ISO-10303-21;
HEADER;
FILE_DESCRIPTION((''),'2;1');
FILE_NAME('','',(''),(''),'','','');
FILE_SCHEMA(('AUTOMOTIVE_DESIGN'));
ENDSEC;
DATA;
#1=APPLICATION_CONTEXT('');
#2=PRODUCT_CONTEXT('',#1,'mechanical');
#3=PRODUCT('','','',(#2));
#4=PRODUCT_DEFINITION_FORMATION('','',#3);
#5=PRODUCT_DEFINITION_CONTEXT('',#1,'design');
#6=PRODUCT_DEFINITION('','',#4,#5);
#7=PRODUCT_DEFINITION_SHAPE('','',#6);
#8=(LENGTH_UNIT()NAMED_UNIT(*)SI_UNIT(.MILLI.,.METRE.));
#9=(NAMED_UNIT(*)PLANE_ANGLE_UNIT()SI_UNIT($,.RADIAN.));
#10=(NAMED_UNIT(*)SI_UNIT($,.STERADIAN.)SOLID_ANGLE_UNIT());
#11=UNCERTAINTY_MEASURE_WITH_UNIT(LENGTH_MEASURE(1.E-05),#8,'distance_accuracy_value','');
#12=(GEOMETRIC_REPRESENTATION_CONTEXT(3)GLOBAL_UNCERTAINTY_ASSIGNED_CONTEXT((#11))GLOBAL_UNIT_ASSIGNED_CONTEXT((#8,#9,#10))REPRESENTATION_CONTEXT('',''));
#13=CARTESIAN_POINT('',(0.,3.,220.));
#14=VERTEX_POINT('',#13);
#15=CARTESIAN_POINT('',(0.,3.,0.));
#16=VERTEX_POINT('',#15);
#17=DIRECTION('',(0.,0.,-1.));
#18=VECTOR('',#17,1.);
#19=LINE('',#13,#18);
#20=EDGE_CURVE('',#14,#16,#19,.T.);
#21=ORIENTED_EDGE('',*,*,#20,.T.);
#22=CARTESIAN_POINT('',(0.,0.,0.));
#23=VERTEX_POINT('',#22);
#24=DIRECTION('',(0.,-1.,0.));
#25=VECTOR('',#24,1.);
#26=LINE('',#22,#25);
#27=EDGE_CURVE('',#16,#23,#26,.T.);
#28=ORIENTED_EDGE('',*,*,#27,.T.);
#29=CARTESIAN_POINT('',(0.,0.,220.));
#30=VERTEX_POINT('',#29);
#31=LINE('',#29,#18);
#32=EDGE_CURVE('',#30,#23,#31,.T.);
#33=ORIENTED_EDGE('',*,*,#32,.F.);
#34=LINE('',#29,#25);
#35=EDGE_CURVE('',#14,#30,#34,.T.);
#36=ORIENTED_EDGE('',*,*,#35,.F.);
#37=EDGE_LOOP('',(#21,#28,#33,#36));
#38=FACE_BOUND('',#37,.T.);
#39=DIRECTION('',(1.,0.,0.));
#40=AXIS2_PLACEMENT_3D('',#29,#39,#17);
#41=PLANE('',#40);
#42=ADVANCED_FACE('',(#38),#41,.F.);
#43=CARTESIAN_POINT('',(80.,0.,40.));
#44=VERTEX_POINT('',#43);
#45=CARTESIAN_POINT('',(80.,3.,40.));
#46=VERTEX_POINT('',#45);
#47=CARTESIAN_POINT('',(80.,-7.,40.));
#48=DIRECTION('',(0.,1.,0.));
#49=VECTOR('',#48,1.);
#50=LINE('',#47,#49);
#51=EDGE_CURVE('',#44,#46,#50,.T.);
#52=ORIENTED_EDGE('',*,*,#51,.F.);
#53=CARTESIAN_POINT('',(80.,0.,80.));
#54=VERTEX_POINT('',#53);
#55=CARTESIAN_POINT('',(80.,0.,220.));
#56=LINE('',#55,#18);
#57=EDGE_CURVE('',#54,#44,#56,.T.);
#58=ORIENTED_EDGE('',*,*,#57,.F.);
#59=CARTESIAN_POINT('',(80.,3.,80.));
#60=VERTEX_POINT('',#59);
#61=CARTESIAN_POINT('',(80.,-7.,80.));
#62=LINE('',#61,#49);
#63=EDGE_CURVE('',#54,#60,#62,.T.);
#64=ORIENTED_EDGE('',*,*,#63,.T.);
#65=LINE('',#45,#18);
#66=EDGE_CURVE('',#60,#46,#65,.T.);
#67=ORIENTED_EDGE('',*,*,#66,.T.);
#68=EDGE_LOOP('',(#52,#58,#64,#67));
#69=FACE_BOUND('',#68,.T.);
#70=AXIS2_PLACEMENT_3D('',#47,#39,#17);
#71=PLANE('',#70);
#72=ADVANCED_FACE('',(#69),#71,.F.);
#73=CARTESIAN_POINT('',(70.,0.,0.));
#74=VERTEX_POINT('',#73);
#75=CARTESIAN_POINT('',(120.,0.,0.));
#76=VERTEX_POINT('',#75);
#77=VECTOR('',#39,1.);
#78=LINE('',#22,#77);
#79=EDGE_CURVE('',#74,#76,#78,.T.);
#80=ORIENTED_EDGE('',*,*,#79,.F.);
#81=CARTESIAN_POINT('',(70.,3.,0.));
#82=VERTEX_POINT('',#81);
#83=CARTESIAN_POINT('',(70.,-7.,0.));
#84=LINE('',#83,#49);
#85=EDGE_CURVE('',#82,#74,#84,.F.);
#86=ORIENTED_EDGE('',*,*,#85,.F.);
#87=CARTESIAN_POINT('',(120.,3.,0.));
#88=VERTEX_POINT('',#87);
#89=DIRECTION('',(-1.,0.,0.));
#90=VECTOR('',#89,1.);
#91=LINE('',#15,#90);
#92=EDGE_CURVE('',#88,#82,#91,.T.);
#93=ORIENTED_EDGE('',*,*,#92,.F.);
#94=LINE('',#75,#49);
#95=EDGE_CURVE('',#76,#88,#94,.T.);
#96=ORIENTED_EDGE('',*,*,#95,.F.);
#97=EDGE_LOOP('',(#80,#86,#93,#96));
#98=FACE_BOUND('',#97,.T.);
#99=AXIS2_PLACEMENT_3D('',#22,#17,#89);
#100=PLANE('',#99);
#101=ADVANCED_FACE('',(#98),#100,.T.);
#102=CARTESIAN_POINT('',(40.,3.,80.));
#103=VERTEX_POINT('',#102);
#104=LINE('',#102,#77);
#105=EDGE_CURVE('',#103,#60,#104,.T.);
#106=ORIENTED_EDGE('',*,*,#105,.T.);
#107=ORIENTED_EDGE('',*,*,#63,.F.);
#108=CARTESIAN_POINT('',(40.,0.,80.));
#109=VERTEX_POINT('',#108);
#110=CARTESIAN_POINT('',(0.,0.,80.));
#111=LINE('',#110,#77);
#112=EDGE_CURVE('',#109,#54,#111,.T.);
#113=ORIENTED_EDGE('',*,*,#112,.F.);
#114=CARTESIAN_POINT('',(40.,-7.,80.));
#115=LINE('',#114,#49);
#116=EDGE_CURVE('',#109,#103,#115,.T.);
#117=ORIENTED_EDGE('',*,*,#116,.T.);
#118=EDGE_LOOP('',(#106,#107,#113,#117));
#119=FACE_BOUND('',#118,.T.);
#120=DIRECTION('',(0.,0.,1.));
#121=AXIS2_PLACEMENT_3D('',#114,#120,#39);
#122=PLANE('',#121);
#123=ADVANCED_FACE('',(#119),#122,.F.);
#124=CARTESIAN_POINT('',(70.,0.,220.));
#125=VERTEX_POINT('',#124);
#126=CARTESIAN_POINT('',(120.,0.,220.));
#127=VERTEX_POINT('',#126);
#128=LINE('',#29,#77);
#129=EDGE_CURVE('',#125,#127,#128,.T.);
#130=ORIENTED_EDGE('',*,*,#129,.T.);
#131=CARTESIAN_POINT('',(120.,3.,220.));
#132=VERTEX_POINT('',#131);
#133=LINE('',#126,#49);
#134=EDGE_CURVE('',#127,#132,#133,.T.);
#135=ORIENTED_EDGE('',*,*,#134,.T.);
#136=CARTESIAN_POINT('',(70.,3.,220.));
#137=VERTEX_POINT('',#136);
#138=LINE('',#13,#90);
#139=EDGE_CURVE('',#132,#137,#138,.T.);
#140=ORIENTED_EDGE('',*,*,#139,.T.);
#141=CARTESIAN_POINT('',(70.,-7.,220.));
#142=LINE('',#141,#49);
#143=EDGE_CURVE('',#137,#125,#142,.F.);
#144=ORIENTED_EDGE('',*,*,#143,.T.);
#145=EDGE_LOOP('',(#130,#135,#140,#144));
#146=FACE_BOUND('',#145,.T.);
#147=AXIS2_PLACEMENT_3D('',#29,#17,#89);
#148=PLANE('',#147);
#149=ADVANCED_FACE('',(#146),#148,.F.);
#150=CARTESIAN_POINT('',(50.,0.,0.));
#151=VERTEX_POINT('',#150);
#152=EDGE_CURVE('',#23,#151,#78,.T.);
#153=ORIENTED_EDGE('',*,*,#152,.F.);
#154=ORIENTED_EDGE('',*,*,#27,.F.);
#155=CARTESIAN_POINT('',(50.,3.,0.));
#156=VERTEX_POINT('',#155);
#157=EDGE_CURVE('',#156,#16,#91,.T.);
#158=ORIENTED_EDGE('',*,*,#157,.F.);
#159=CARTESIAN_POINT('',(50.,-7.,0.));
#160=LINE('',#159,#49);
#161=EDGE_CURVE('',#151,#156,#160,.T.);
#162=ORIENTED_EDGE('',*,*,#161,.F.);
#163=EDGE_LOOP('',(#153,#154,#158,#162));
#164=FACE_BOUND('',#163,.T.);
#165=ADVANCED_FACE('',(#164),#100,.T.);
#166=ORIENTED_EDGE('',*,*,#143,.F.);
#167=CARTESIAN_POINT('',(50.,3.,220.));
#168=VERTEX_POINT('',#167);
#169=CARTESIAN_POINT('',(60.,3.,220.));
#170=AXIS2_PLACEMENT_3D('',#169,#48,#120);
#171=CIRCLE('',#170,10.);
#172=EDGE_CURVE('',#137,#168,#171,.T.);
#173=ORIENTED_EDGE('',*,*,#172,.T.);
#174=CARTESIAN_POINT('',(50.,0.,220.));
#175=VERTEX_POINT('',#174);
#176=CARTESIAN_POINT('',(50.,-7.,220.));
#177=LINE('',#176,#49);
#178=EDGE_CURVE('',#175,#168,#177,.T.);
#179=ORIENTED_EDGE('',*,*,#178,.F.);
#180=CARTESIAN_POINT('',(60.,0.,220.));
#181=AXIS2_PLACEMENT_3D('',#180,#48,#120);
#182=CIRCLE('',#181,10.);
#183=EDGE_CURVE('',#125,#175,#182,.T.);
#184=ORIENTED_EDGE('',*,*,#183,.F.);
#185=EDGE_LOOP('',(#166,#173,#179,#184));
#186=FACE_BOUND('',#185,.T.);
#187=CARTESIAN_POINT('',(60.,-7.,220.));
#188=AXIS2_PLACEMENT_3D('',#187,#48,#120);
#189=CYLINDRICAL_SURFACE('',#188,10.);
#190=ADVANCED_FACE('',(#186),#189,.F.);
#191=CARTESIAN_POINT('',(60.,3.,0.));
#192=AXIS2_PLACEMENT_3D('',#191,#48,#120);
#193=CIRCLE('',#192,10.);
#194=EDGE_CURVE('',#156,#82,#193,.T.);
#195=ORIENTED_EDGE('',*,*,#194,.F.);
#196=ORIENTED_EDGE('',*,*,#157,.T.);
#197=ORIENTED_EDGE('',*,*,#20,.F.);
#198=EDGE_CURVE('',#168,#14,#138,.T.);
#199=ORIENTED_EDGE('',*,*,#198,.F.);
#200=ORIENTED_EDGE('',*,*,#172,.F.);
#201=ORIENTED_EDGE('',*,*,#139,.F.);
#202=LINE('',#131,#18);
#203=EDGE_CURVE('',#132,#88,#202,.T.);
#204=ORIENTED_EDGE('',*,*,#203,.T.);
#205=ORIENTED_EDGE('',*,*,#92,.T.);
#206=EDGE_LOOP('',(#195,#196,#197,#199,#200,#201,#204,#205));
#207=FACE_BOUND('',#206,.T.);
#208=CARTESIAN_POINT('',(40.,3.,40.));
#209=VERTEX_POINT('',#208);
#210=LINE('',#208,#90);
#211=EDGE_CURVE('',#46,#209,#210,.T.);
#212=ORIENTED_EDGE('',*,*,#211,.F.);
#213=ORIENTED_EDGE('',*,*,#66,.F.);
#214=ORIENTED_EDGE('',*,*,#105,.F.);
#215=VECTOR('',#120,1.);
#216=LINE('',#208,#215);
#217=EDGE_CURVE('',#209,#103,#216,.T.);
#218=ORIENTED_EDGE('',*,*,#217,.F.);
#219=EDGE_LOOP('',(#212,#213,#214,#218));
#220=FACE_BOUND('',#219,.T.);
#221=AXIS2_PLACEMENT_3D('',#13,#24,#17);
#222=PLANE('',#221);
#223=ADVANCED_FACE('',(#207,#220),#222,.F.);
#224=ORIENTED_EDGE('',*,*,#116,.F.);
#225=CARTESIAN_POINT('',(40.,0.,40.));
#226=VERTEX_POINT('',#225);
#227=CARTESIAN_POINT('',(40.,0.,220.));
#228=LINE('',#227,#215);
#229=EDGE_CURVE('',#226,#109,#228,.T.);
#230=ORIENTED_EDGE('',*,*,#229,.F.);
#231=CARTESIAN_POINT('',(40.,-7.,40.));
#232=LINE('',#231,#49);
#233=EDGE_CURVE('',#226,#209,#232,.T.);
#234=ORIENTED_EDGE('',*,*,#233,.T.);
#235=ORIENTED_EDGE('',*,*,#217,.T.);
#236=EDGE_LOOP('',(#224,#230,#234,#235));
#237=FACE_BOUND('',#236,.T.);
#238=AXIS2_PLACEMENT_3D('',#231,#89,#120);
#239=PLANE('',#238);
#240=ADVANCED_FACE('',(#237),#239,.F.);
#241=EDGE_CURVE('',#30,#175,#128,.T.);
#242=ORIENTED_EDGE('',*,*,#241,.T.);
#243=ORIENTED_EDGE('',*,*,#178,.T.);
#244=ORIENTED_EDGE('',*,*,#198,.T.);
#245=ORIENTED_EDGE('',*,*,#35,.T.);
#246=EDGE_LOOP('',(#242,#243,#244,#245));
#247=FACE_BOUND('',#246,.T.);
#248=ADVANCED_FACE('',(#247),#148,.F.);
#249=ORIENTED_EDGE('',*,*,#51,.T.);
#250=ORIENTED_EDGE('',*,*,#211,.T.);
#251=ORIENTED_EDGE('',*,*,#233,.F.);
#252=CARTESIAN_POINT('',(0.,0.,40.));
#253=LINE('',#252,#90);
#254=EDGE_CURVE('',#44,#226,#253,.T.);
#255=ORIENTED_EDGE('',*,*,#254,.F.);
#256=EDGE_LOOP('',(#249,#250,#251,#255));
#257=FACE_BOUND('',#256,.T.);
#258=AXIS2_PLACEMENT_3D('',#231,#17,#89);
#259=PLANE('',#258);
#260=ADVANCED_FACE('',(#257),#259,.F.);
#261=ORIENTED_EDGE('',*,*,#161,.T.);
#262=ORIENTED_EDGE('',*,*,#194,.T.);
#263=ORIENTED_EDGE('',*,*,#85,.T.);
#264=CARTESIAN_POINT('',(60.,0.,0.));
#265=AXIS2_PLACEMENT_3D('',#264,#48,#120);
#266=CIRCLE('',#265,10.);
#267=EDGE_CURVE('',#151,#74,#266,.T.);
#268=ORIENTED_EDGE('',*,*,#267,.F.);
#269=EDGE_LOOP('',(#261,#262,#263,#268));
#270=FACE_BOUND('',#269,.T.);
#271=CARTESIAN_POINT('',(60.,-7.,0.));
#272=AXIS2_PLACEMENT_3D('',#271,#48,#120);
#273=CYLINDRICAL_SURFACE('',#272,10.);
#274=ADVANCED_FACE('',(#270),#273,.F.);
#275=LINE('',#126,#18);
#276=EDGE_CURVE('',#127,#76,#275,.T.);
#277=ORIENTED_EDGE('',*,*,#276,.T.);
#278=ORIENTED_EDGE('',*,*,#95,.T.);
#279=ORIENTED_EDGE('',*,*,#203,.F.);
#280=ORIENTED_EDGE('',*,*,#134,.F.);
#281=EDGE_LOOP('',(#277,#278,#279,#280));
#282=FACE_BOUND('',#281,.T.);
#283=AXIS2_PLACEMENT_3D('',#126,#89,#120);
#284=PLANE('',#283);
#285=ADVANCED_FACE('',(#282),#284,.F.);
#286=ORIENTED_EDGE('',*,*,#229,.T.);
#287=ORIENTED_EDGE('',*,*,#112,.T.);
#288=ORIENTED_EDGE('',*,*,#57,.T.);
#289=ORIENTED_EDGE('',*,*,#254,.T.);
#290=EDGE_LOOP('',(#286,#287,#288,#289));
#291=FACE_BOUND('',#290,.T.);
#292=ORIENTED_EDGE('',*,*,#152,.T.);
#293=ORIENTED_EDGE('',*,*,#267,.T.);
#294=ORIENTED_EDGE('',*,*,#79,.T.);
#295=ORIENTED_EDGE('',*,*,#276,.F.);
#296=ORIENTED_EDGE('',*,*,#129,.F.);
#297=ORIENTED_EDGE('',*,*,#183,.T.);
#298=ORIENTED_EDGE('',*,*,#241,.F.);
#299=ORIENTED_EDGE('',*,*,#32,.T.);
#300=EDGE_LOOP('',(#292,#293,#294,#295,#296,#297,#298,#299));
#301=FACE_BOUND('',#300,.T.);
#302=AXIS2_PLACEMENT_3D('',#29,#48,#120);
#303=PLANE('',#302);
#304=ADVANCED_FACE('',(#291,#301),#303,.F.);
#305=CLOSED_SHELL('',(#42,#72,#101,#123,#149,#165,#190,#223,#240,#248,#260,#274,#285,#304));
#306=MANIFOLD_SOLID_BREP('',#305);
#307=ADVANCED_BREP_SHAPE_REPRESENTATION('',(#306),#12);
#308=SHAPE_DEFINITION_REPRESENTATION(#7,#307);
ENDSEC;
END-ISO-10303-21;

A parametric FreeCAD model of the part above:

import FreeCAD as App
import Part
import Sketcher
from FreeCAD import Vector


def add_polygon(sketch, points):
    """Adds a closed chain of lines whose ends are joined by coincident constraints."""
    first, n = sketch.GeometryCount, len(points)
    for a, b in zip(points, points[1:] + points[:1]):
        sketch.addGeometry(Part.LineSegment(App.Vector(*a, 0), App.Vector(*b, 0)), False)
    for i in range(n):
        sketch.addConstraint(Sketcher.Constraint("Coincident", first + i, 2, first + (i + 1) % n, 1))

doc = App.newDocument("Part")
params = doc.addObject("Spreadsheet::Sheet", "Params")
for row, (alias, value) in enumerate([
    ("sketch1_width", "120 mm"),
    ("sketch1_height", "3 mm"),
    ("pad1_length", "220 mm"),
    ("sketch2_diameter", "20 mm"),
    ("pocket1_length", "10 mm"),
    ("sketch3_width", "40 mm"),
    ("pocket2_length", "10 mm"),
], start=1):
    params.set(f"A{row}", alias)
    params.set(f"B{row}", "=" + value)
    params.setAlias(f"B{row}", alias)

body = doc.addObject("PartDesign::Body", "Body")

# Sketch on XY plane
sketch1 = body.newObject("Sketcher::SketchObject", "Sketch")
sketch1.AttachmentSupport = (doc.getObject("XY_Plane"), [""])
sketch1.MapMode = "FlatFace"
add_polygon(sketch1, [(0, 3), (0, 0), (120, 0), (120, 3)])  # lines 0-3
sketch1.addConstraint([
    Sketcher.Constraint("Vertical", 0),
    Sketcher.Constraint("Horizontal", 1),
    Sketcher.Constraint("Vertical", 2),
    Sketcher.Constraint("Horizontal", 3),
    Sketcher.Constraint("Coincident", 0, 2, -1, 1),
    Sketcher.Constraint("DistanceX", 1, 1, 1, 2, 120.0),
    Sketcher.Constraint("DistanceY", 0, 2, 0, 1, 3.0),
])
sketch1.setExpression("Constraints[9]", "Params.sketch1_width")
sketch1.setExpression("Constraints[10]", "Params.sketch1_height")
pad1 = body.newObject("PartDesign::Pad", "Pad")
pad1.Profile = sketch1
pad1.setExpression("Length", "Params.pad1_length")

# Sketch on XZ plane
sketch2 = body.newObject("Sketcher::SketchObject", "Sketch001")
sketch2.AttachmentSupport = (doc.getObject("XZ_Plane"), [""])
sketch2.MapMode = "FlatFace"
sketch2.AttachmentOffset = App.Placement(Vector(0, 0, -3), App.Rotation())
sketch2.addGeometry([
    Part.Circle(Vector(60, 220, 0), Vector(0, 0, 1), 10),
    Part.Circle(Vector(60, 0, 0), Vector(0, 0, 1), 10),
], False)
sketch2.addConstraint([
    Sketcher.Constraint("Equal", 0, 1),
    Sketcher.Constraint("PointOnObject", 1, 3, -1),
    Sketcher.Constraint("Vertical", 0, 3, 1, 3),
    Sketcher.Constraint("Diameter", 0, 20.0),
    Sketcher.Constraint("DistanceX", -1, 1, 0, 3, 60.0),
    Sketcher.Constraint("DistanceY", -1, 1, 0, 3, 220.0),
])
sketch2.setExpression("Constraints[3]", "Params.sketch2_diameter")
pocket1 = body.newObject("PartDesign::Pocket", "Pocket")
pocket1.Profile = sketch2
pocket1.setExpression("Length", "Params.pocket1_length")
pocket1.Reversed = True

# Sketch on XZ plane
sketch3 = body.newObject("Sketcher::SketchObject", "Sketch002")
sketch3.AttachmentSupport = (doc.getObject("XZ_Plane"), [""])
sketch3.MapMode = "FlatFace"
sketch3.AttachmentOffset = App.Placement(Vector(0, 0, -3), App.Rotation())
add_polygon(sketch3, [(40, 40), (40, 80), (80, 80), (80, 40)])  # lines 0-3
sketch3.addConstraint([
    Sketcher.Constraint("Vertical", 0),
    Sketcher.Constraint("Horizontal", 1),
    Sketcher.Constraint("Vertical", 2),
    Sketcher.Constraint("Horizontal", 3),
    Sketcher.Constraint("Equal", 3, 0),
    Sketcher.Constraint("DistanceX", 1, 1, 1, 2, 40.0),
    Sketcher.Constraint("DistanceX", -1, 1, 0, 2, 40.0),
    Sketcher.Constraint("DistanceY", -1, 1, 0, 2, 80.0),
])
sketch3.setExpression("Constraints[9]", "Params.sketch3_width")
pocket2 = body.newObject("PartDesign::Pocket", "Pocket001")
pocket2.Profile = sketch3
pocket2.setExpression("Length", "Params.pocket2_length")
pocket2.Reversed = True

doc.recompute()
